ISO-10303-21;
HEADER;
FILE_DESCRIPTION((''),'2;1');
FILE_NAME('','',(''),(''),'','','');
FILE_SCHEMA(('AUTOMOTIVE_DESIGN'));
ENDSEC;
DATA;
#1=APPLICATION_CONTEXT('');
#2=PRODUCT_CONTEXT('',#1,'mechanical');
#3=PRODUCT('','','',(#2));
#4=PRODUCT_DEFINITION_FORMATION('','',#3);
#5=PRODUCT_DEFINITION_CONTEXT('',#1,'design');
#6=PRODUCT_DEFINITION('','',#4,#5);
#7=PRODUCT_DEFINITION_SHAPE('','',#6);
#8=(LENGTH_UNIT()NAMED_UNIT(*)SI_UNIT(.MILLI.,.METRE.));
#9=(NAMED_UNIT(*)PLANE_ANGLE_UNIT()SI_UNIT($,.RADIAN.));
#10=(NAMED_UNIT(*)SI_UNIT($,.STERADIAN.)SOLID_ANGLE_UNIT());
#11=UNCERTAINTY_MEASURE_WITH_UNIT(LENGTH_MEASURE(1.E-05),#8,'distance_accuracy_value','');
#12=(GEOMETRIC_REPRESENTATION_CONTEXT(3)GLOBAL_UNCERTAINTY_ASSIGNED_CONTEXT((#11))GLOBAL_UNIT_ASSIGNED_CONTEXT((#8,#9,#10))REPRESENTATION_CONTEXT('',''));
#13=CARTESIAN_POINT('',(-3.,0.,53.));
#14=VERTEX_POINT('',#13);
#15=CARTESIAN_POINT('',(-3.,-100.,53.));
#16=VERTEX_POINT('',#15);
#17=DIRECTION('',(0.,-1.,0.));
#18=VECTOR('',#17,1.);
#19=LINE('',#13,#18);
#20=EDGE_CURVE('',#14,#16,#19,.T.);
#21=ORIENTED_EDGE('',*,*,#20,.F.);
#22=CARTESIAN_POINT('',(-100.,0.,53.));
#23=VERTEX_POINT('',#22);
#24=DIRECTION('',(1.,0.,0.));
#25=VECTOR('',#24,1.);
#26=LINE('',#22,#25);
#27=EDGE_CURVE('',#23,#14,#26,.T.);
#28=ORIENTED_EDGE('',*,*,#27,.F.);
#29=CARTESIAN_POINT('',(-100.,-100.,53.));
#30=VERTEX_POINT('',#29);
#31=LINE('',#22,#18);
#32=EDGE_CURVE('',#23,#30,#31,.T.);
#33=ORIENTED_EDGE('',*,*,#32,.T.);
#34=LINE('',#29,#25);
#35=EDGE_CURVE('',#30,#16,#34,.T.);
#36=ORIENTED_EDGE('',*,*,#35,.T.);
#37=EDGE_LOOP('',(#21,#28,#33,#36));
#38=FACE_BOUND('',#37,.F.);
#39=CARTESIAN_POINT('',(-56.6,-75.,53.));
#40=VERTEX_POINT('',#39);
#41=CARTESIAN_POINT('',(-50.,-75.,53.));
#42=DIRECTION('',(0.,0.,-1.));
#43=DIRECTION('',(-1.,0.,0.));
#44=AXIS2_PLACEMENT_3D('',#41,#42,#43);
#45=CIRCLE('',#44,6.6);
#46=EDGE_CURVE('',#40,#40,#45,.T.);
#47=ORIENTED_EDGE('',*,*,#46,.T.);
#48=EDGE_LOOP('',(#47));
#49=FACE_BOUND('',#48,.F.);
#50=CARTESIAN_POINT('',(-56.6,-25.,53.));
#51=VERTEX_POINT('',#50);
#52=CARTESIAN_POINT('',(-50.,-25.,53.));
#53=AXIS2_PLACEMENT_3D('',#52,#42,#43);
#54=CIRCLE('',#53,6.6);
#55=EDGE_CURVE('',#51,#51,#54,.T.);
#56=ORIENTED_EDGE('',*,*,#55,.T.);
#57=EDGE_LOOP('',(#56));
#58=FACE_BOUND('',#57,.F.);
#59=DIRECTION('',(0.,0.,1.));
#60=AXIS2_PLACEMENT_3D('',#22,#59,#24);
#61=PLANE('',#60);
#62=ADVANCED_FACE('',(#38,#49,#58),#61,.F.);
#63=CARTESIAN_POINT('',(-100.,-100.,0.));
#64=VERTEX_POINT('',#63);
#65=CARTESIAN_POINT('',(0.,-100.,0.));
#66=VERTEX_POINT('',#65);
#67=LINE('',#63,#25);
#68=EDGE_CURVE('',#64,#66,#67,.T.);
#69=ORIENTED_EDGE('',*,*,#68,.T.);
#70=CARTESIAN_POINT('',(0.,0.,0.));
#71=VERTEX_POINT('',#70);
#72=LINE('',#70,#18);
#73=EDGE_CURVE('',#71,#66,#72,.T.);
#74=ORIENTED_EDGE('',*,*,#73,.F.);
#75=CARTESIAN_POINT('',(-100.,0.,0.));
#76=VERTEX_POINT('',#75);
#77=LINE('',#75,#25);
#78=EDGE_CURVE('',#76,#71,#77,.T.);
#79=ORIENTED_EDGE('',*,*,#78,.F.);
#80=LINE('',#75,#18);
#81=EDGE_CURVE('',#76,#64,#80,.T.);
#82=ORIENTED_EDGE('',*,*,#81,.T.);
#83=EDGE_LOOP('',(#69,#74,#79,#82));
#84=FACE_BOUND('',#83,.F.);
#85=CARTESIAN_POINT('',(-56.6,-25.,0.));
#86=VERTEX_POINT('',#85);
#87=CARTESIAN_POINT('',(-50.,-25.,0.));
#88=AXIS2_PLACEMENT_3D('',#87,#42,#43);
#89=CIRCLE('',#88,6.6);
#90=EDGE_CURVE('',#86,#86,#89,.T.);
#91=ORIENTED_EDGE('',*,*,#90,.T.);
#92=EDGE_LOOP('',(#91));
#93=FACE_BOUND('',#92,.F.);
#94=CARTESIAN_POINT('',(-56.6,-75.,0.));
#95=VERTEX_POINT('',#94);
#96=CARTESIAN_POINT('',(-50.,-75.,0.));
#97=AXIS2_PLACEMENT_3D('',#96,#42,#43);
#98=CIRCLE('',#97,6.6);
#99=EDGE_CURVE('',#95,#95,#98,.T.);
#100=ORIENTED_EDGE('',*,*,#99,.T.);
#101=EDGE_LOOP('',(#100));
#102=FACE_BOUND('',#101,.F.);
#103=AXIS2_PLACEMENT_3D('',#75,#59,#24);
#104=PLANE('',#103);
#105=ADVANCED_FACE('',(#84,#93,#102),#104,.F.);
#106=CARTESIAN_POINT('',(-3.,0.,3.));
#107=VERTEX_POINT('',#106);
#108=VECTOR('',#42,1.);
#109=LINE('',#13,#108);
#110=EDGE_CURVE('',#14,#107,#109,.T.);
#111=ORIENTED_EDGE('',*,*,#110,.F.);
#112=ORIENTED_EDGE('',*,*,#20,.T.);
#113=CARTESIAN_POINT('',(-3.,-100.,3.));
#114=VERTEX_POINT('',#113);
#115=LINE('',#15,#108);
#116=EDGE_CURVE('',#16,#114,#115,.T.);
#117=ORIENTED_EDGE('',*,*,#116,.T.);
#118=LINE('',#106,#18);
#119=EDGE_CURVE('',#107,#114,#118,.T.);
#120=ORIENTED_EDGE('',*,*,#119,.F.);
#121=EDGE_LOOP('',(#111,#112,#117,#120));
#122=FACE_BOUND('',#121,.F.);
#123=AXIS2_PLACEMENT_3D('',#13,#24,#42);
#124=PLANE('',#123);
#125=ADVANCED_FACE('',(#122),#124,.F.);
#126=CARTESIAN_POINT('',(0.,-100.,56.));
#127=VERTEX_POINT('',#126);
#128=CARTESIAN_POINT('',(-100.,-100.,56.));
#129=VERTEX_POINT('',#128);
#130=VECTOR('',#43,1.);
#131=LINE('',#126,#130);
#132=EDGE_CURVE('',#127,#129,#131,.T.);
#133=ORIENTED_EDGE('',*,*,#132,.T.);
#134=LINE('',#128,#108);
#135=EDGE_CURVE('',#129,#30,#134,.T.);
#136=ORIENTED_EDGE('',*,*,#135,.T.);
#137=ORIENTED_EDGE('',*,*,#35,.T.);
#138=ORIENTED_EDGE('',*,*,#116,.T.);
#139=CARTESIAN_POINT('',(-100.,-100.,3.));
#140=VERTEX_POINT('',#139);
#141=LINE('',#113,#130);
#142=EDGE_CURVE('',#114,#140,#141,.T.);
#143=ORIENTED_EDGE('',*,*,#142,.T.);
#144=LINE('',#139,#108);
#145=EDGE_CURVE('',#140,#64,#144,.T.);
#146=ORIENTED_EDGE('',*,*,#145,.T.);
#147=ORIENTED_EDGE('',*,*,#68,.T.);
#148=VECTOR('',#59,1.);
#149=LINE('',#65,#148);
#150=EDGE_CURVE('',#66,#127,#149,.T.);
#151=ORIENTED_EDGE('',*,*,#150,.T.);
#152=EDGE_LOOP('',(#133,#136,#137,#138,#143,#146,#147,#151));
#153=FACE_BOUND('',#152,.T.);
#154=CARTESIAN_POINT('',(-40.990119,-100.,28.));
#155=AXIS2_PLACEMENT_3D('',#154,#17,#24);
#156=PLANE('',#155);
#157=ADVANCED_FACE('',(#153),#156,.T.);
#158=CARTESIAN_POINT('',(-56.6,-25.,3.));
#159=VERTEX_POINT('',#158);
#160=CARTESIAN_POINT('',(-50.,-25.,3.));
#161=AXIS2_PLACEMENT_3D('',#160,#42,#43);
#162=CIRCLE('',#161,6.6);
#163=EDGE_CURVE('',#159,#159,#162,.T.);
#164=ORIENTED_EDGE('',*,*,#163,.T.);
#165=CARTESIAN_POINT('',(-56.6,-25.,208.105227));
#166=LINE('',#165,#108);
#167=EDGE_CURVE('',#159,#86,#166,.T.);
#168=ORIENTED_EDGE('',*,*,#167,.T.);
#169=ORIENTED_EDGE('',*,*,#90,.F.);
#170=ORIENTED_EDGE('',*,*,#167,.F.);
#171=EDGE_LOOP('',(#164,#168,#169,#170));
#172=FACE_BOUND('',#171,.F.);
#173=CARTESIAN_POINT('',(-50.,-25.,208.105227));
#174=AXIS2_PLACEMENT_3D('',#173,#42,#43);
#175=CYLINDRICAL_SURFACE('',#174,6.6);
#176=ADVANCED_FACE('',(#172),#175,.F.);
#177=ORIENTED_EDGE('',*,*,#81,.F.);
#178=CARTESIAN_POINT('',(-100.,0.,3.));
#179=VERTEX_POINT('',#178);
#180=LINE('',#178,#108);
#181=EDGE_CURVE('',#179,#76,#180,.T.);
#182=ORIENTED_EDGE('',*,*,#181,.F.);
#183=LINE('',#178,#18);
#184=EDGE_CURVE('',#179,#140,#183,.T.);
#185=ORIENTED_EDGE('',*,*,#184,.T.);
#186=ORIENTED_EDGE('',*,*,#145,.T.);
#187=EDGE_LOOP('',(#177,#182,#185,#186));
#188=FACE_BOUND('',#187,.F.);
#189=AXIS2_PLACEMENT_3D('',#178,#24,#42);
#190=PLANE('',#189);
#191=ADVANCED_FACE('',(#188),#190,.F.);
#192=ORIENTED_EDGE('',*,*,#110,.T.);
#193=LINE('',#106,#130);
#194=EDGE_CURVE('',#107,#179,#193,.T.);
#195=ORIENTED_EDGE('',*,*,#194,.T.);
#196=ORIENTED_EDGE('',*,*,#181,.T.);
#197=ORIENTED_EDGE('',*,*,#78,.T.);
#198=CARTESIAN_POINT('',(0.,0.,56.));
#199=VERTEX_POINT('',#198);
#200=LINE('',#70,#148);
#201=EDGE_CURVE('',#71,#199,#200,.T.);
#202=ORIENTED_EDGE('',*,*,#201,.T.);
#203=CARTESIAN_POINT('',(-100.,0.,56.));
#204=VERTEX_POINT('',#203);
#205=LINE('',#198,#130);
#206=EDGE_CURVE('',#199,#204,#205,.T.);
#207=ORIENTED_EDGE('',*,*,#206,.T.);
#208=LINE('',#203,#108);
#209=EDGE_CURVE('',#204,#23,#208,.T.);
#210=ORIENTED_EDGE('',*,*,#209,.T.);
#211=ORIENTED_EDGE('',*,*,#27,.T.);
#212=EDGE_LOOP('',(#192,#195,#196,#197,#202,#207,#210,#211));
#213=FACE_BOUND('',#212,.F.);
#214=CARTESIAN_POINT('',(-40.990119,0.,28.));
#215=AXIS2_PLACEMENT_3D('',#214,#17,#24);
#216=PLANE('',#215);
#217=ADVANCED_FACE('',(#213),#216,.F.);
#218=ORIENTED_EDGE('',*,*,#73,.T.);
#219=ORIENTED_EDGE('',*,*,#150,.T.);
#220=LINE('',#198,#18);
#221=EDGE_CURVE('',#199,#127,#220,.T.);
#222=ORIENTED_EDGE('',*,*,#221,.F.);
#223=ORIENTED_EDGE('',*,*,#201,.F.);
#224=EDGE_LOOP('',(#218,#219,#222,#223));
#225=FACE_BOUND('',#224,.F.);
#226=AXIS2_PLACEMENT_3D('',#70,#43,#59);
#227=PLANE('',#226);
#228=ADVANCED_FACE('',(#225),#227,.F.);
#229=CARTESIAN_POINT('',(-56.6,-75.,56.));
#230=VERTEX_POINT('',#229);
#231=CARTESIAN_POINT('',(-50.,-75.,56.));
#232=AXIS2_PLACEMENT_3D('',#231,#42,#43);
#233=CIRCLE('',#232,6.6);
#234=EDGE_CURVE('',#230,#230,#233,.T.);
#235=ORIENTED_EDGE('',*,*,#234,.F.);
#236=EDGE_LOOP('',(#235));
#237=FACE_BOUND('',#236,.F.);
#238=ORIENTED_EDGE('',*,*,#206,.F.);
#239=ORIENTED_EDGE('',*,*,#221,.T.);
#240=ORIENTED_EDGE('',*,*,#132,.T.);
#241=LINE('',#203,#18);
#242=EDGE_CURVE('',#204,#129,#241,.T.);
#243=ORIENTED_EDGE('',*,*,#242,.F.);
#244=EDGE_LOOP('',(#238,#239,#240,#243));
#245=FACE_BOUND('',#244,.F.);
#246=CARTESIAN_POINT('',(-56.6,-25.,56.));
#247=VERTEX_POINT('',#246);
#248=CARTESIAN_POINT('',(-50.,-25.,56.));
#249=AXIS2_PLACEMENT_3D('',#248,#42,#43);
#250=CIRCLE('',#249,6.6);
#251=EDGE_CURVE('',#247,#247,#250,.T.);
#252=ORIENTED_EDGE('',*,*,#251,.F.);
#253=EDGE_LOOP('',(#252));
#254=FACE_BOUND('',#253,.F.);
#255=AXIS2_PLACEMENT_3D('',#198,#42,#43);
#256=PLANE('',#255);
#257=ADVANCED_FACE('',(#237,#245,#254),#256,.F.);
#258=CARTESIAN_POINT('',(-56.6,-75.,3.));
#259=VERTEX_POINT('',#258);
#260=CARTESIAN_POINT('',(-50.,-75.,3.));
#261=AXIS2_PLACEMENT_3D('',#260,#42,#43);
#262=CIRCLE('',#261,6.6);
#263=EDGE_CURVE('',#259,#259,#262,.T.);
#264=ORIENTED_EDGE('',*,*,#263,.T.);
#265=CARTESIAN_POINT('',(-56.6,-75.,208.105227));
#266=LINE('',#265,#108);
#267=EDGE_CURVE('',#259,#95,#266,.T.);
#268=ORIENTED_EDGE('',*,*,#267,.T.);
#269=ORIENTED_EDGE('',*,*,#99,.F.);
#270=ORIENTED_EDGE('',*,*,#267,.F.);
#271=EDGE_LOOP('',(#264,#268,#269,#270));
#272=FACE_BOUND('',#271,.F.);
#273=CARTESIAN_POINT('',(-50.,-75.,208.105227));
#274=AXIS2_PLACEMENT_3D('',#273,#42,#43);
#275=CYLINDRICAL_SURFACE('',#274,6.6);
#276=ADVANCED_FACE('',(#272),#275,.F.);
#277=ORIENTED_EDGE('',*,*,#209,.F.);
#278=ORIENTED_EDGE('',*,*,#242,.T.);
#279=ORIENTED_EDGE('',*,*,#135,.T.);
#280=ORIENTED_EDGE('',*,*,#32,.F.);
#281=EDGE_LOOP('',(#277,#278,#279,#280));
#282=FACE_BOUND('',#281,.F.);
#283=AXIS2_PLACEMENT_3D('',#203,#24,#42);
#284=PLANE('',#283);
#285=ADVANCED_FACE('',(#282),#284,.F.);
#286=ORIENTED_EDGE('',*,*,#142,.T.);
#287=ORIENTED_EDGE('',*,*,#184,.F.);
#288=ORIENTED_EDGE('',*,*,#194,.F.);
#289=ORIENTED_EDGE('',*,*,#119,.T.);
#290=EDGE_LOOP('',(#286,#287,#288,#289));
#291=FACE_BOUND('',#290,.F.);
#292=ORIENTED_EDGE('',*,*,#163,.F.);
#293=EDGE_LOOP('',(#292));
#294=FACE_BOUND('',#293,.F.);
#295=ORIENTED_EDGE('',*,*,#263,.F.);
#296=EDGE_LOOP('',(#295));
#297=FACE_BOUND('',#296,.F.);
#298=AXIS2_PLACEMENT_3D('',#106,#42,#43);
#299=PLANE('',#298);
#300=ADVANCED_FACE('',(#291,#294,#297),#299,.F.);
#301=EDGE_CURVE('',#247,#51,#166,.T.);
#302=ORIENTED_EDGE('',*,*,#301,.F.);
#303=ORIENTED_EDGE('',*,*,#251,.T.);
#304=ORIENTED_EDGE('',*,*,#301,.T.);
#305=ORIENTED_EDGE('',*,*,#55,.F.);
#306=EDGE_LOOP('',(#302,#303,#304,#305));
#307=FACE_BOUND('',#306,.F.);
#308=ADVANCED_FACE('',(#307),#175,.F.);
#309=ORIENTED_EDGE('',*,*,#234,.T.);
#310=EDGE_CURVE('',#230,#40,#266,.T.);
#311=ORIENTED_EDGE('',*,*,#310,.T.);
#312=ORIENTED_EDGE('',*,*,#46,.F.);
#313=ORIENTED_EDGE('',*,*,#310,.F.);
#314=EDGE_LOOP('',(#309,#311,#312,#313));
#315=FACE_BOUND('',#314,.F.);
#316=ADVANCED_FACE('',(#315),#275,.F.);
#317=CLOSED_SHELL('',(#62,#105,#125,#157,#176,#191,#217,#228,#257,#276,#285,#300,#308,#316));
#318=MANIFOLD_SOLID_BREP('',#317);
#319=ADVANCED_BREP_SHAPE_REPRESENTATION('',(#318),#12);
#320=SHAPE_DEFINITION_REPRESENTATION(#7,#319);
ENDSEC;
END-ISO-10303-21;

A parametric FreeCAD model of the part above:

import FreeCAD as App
import Part
import Sketcher
from FreeCAD import Vector


def add_polygon(sketch, points):
    """Adds a closed chain of lines whose ends are joined by coincident constraints."""
    first, n = sketch.GeometryCount, len(points)
    for a, b in zip(points, points[1:] + points[:1]):
        sketch.addGeometry(Part.LineSegment(App.Vector(*a, 0), App.Vector(*b, 0)), False)
    for i in range(n):
        sketch.addConstraint(Sketcher.Constraint("Coincident", first + i, 2, first + (i + 1) % n, 1))

doc = App.newDocument("Part")
params = doc.addObject("Spreadsheet::Sheet", "Params")
for row, (alias, value) in enumerate([
    ("sketch1_width", "100 mm"),
    ("sketch1_width2", "97 mm"),
    ("sketch1_height", "56 mm"),
    ("sketch1_height2", "3 mm"),
    ("pad1_length", "100 mm"),
    ("sketch2_diameter", "13.2 mm"),
    ("hole_diameter", "13.2 mm"),
], start=1):
    params.set(f"A{row}", alias)
    params.set(f"B{row}", "=" + value)
    params.setAlias(f"B{row}", alias)

body = doc.addObject("PartDesign::Body", "Body")

# Sketch on XZ plane
sketch1 = body.newObject("Sketcher::SketchObject", "Sketch")
sketch1.AttachmentSupport = (doc.getObject("XZ_Plane"), [""])
sketch1.MapMode = "FlatFace"
add_polygon(sketch1, [(-100, 0), (0, 0), (0, 56), (-100, 56), (-100, 53), (-3, 53), (-3, 3), (-100, 3)])  # lines 0-7
sketch1.addConstraint([
    Sketcher.Constraint("Horizontal", 0),
    Sketcher.Constraint("Vertical", 1),
    Sketcher.Constraint("Horizontal", 2),
    Sketcher.Constraint("Vertical", 3),
    Sketcher.Constraint("Horizontal", 4),
    Sketcher.Constraint("Vertical", 5),
    Sketcher.Constraint("Horizontal", 6),
    Sketcher.Constraint("Vertical", 7),
    Sketcher.Constraint("Coincident", 0, 2, -1, 1),
    Sketcher.Constraint("Vertical", 3, 2, 6, 2),
    Sketcher.Constraint("Equal", 3, 7),
    Sketcher.Constraint("DistanceX", 0, 1, 0, 2, 100.0),
    Sketcher.Constraint("DistanceX", 4, 1, 4, 2, 97.0),
    Sketcher.Constraint("DistanceY", 1, 1, 1, 2, 56.0),
    Sketcher.Constraint("DistanceY", 3, 2, 3, 1, 3.0),
])
sketch1.setExpression("Constraints[19]", "Params.sketch1_width")
sketch1.setExpression("Constraints[20]", "Params.sketch1_width2")
sketch1.setExpression("Constraints[21]", "Params.sketch1_height")
sketch1.setExpression("Constraints[22]", "Params.sketch1_height2")
pad1 = body.newObject("PartDesign::Pad", "Pad")
pad1.Profile = sketch1
pad1.setExpression("Length", "Params.pad1_length")

# Sketch on XY plane
sketch2 = body.newObject("Sketcher::SketchObject", "Sketch001")
sketch2.AttachmentSupport = (doc.getObject("XY_Plane"), [""])
sketch2.MapMode = "FlatFace"
sketch2.AttachmentOffset = App.Placement(Vector(0, 0, 56), App.Rotation())
sketch2.addGeometry([
    Part.Circle(Vector(-50, -75, 0), Vector(0, 0, 1), 7),
    Part.Circle(Vector(-50, -25, 0), Vector(0, 0, 1), 7),
], False)
sketch2.addConstraint([
    Sketcher.Constraint("Equal", 0, 1),
    Sketcher.Constraint("Vertical", 0, 3, 1, 3),
    Sketcher.Constraint("Diameter", 0, 13.2),
    Sketcher.Constraint("DistanceX", 0, 3, -1, 1, 50.0),
    Sketcher.Constraint("DistanceY", 0, 3, -1, 1, 75.0),
    Sketcher.Constraint("DistanceY", 1, 3, -1, 1, 25.0),
])
sketch2.setExpression("Constraints[2]", "Params.sketch2_diameter")
doc.recompute()
hole = body.newObject("PartDesign::Hole", "Hole")
hole.Profile = sketch2
hole.ThreadType = "None"
hole.setExpression("Diameter", "Params.hole_diameter")
hole.DepthType = "ThroughAll"

doc.recompute()
